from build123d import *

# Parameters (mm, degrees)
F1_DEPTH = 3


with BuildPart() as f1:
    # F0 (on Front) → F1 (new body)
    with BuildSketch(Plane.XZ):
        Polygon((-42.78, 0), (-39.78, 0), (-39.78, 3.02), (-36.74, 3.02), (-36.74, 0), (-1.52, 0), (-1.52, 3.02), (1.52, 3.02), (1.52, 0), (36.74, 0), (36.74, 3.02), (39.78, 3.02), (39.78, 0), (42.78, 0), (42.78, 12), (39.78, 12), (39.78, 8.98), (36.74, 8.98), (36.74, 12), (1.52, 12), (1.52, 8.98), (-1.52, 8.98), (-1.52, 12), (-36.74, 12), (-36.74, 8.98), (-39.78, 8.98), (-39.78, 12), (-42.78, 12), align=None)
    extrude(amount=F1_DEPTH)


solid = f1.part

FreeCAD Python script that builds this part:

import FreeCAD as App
import Part
import Sketcher

V = App.Vector


def add_polygon(sketch, points):
    """Adds a closed chain of lines whose ends are joined by coincident constraints."""
    first, n = sketch.GeometryCount, len(points)
    for a, b in zip(points, points[1:] + points[:1]):
        sketch.addGeometry(Part.LineSegment(App.Vector(*a, 0), App.Vector(*b, 0)), False)
    for i in range(n):
        sketch.addConstraint(Sketcher.Constraint("Coincident", first + i, 2, first + (i + 1) % n, 1))

doc = App.newDocument("Part")
params = doc.addObject("Spreadsheet::Sheet", "Params")
for row, (alias, value) in enumerate([
    ("sketch1_width", "3 mm"),
    ("sketch1_height", "12 mm"),
    ("sketch1_width2", "3.04 mm"),
    ("sketch1_width3", "35.22 mm"),
    ("sketch1_height2", "3.02 mm"),
    ("pad1_length", "3 mm"),
], start=1):
    params.set(f"A{row}", alias)
    params.set(f"B{row}", "=" + value)
    params.setAlias(f"B{row}", alias)

body = doc.addObject("PartDesign::Body", "Body")

sketch1 = body.newObject("Sketcher::SketchObject", "Sketch")
sketch1.AttachmentSupport = (doc.getObject("XZ_Plane"), [""])
sketch1.MapMode = "FlatFace"
add_polygon(sketch1, [(-42.8, 0), (-39.8, 0), (-39.8, 3), (-36.7, 3), (-36.7, 0), (-1.5, 0), (-1.5, 3), (1.5, 3), (1.5, 0), (36.7, 0), (36.7, 3), (39.8, 3), (39.8, 0), (42.8, 0), (42.8, 12), (39.8, 12), (39.8, 9), (36.7, 9), (36.7, 12), (1.5, 12), (1.5, 9), (-1.5, 9), (-1.5, 12), (-36.7, 12), (-36.7, 9), (-39.8, 9), (-39.8, 12), (-42.8, 12)])
sketch1.addConstraint(Sketcher.Constraint("Horizontal", 0))
sketch1.addConstraint(Sketcher.Constraint("Vertical", 1))
sketch1.addConstraint(Sketcher.Constraint("Horizontal", 2))
sketch1.addConstraint(Sketcher.Constraint("Vertical", 3))
sketch1.addConstraint(Sketcher.Constraint("Horizontal", 4))
sketch1.addConstraint(Sketcher.Constraint("Vertical", 5))
sketch1.addConstraint(Sketcher.Constraint("Horizontal", 6))
sketch1.addConstraint(Sketcher.Constraint("Vertical", 7))
sketch1.addConstraint(Sketcher.Constraint("Horizontal", 8))
sketch1.addConstraint(Sketcher.Constraint("Vertical", 9))
sketch1.addConstraint(Sketcher.Constraint("Horizontal", 10))
sketch1.addConstraint(Sketcher.Constraint("Vertical", 11))
sketch1.addConstraint(Sketcher.Constraint("Horizontal", 12))
sketch1.addConstraint(Sketcher.Constraint("Vertical", 13))
sketch1.addConstraint(Sketcher.Constraint("Horizontal", 14))
sketch1.addConstraint(Sketcher.Constraint("Vertical", 15))
sketch1.addConstraint(Sketcher.Constraint("Horizontal", 16))
sketch1.addConstraint(Sketcher.Constraint("Vertical", 17))
sketch1.addConstraint(Sketcher.Constraint("Horizontal", 18))
sketch1.addConstraint(Sketcher.Constraint("Vertical", 19))
sketch1.addConstraint(Sketcher.Constraint("Horizontal", 20))
sketch1.addConstraint(Sketcher.Constraint("Vertical", 21))
sketch1.addConstraint(Sketcher.Constraint("Horizontal", 22))
sketch1.addConstraint(Sketcher.Constraint("Vertical", 23))
sketch1.addConstraint(Sketcher.Constraint("Horizontal", 24))
sketch1.addConstraint(Sketcher.Constraint("Vertical", 25))
sketch1.addConstraint(Sketcher.Constraint("Horizontal", 26))
sketch1.addConstraint(Sketcher.Constraint("Vertical", 27))
sketch1.addConstraint(Sketcher.Constraint("Symmetric", 4, 2, 7, 2, -1, 1))
sketch1.addConstraint(Sketcher.Constraint("Symmetric", 0, 2, 11, 2, -1, 1))
sketch1.addConstraint(Sketcher.Constraint("Symmetric", 3, 2, 8, 2, -2))
sketch1.addConstraint(Sketcher.Constraint("Symmetric", 18, 2, 21, 2, -2))
sketch1.addConstraint(Sketcher.Constraint("Symmetric", 16, 2, 23, 2, -2))
sketch1.addConstraint(Sketcher.Constraint("Symmetric", 14, 2, 25, 2, -2))
sketch1.addConstraint(Sketcher.Constraint("Symmetric", 12, 2, 27, 2, -2))
sketch1.addConstraint(Sketcher.Constraint("Horizontal", 2, 2, 5, 2))
sketch1.addConstraint(Sketcher.Constraint("Horizontal", 6, 2, 9, 2))
sketch1.addConstraint(Sketcher.Constraint("Horizontal", 14, 2, 17, 2))
sketch1.addConstraint(Sketcher.Constraint("Horizontal", 16, 2, 19, 2))
sketch1.addConstraint(Sketcher.Constraint("Vertical", 11, 2, 14, 2))
sketch1.addConstraint(Sketcher.Constraint("Vertical", 9, 2, 16, 2))
sketch1.addConstraint(Sketcher.Constraint("Vertical", 7, 2, 18, 2))
sketch1.addConstraint(Sketcher.Constraint("Equal", 2, 6))
sketch1.addConstraint(Sketcher.Constraint("Equal", 11, 15))
sketch1.addConstraint(Sketcher.Constraint("DistanceX", 0, 1, 0, 2, 3.0))
sketch1.addConstraint(Sketcher.Constraint("DistanceY", 13, 1, 13, 2, 12.0))
sketch1.addConstraint(Sketcher.Constraint("DistanceX", 2, 1, 2, 2, 3.04))
sketch1.addConstraint(Sketcher.Constraint("DistanceX", 4, 1, 4, 2, 35.22))
sketch1.addConstraint(Sketcher.Constraint("DistanceY", 1, 1, 1, 2, 3.02))
sketch1.setExpression("Constraints[72]", "Params.sketch1_width")
sketch1.setExpression("Constraints[73]", "Params.sketch1_height")
sketch1.setExpression("Constraints[74]", "Params.sketch1_width2")
sketch1.setExpression("Constraints[75]", "Params.sketch1_width3")
sketch1.setExpression("Constraints[76]", "Params.sketch1_height2")
pad1 = body.newObject("PartDesign::Pad", "Pad")
pad1.Profile = sketch1
pad1.setExpression("Length", "Params.pad1_length")

doc.recompute()
